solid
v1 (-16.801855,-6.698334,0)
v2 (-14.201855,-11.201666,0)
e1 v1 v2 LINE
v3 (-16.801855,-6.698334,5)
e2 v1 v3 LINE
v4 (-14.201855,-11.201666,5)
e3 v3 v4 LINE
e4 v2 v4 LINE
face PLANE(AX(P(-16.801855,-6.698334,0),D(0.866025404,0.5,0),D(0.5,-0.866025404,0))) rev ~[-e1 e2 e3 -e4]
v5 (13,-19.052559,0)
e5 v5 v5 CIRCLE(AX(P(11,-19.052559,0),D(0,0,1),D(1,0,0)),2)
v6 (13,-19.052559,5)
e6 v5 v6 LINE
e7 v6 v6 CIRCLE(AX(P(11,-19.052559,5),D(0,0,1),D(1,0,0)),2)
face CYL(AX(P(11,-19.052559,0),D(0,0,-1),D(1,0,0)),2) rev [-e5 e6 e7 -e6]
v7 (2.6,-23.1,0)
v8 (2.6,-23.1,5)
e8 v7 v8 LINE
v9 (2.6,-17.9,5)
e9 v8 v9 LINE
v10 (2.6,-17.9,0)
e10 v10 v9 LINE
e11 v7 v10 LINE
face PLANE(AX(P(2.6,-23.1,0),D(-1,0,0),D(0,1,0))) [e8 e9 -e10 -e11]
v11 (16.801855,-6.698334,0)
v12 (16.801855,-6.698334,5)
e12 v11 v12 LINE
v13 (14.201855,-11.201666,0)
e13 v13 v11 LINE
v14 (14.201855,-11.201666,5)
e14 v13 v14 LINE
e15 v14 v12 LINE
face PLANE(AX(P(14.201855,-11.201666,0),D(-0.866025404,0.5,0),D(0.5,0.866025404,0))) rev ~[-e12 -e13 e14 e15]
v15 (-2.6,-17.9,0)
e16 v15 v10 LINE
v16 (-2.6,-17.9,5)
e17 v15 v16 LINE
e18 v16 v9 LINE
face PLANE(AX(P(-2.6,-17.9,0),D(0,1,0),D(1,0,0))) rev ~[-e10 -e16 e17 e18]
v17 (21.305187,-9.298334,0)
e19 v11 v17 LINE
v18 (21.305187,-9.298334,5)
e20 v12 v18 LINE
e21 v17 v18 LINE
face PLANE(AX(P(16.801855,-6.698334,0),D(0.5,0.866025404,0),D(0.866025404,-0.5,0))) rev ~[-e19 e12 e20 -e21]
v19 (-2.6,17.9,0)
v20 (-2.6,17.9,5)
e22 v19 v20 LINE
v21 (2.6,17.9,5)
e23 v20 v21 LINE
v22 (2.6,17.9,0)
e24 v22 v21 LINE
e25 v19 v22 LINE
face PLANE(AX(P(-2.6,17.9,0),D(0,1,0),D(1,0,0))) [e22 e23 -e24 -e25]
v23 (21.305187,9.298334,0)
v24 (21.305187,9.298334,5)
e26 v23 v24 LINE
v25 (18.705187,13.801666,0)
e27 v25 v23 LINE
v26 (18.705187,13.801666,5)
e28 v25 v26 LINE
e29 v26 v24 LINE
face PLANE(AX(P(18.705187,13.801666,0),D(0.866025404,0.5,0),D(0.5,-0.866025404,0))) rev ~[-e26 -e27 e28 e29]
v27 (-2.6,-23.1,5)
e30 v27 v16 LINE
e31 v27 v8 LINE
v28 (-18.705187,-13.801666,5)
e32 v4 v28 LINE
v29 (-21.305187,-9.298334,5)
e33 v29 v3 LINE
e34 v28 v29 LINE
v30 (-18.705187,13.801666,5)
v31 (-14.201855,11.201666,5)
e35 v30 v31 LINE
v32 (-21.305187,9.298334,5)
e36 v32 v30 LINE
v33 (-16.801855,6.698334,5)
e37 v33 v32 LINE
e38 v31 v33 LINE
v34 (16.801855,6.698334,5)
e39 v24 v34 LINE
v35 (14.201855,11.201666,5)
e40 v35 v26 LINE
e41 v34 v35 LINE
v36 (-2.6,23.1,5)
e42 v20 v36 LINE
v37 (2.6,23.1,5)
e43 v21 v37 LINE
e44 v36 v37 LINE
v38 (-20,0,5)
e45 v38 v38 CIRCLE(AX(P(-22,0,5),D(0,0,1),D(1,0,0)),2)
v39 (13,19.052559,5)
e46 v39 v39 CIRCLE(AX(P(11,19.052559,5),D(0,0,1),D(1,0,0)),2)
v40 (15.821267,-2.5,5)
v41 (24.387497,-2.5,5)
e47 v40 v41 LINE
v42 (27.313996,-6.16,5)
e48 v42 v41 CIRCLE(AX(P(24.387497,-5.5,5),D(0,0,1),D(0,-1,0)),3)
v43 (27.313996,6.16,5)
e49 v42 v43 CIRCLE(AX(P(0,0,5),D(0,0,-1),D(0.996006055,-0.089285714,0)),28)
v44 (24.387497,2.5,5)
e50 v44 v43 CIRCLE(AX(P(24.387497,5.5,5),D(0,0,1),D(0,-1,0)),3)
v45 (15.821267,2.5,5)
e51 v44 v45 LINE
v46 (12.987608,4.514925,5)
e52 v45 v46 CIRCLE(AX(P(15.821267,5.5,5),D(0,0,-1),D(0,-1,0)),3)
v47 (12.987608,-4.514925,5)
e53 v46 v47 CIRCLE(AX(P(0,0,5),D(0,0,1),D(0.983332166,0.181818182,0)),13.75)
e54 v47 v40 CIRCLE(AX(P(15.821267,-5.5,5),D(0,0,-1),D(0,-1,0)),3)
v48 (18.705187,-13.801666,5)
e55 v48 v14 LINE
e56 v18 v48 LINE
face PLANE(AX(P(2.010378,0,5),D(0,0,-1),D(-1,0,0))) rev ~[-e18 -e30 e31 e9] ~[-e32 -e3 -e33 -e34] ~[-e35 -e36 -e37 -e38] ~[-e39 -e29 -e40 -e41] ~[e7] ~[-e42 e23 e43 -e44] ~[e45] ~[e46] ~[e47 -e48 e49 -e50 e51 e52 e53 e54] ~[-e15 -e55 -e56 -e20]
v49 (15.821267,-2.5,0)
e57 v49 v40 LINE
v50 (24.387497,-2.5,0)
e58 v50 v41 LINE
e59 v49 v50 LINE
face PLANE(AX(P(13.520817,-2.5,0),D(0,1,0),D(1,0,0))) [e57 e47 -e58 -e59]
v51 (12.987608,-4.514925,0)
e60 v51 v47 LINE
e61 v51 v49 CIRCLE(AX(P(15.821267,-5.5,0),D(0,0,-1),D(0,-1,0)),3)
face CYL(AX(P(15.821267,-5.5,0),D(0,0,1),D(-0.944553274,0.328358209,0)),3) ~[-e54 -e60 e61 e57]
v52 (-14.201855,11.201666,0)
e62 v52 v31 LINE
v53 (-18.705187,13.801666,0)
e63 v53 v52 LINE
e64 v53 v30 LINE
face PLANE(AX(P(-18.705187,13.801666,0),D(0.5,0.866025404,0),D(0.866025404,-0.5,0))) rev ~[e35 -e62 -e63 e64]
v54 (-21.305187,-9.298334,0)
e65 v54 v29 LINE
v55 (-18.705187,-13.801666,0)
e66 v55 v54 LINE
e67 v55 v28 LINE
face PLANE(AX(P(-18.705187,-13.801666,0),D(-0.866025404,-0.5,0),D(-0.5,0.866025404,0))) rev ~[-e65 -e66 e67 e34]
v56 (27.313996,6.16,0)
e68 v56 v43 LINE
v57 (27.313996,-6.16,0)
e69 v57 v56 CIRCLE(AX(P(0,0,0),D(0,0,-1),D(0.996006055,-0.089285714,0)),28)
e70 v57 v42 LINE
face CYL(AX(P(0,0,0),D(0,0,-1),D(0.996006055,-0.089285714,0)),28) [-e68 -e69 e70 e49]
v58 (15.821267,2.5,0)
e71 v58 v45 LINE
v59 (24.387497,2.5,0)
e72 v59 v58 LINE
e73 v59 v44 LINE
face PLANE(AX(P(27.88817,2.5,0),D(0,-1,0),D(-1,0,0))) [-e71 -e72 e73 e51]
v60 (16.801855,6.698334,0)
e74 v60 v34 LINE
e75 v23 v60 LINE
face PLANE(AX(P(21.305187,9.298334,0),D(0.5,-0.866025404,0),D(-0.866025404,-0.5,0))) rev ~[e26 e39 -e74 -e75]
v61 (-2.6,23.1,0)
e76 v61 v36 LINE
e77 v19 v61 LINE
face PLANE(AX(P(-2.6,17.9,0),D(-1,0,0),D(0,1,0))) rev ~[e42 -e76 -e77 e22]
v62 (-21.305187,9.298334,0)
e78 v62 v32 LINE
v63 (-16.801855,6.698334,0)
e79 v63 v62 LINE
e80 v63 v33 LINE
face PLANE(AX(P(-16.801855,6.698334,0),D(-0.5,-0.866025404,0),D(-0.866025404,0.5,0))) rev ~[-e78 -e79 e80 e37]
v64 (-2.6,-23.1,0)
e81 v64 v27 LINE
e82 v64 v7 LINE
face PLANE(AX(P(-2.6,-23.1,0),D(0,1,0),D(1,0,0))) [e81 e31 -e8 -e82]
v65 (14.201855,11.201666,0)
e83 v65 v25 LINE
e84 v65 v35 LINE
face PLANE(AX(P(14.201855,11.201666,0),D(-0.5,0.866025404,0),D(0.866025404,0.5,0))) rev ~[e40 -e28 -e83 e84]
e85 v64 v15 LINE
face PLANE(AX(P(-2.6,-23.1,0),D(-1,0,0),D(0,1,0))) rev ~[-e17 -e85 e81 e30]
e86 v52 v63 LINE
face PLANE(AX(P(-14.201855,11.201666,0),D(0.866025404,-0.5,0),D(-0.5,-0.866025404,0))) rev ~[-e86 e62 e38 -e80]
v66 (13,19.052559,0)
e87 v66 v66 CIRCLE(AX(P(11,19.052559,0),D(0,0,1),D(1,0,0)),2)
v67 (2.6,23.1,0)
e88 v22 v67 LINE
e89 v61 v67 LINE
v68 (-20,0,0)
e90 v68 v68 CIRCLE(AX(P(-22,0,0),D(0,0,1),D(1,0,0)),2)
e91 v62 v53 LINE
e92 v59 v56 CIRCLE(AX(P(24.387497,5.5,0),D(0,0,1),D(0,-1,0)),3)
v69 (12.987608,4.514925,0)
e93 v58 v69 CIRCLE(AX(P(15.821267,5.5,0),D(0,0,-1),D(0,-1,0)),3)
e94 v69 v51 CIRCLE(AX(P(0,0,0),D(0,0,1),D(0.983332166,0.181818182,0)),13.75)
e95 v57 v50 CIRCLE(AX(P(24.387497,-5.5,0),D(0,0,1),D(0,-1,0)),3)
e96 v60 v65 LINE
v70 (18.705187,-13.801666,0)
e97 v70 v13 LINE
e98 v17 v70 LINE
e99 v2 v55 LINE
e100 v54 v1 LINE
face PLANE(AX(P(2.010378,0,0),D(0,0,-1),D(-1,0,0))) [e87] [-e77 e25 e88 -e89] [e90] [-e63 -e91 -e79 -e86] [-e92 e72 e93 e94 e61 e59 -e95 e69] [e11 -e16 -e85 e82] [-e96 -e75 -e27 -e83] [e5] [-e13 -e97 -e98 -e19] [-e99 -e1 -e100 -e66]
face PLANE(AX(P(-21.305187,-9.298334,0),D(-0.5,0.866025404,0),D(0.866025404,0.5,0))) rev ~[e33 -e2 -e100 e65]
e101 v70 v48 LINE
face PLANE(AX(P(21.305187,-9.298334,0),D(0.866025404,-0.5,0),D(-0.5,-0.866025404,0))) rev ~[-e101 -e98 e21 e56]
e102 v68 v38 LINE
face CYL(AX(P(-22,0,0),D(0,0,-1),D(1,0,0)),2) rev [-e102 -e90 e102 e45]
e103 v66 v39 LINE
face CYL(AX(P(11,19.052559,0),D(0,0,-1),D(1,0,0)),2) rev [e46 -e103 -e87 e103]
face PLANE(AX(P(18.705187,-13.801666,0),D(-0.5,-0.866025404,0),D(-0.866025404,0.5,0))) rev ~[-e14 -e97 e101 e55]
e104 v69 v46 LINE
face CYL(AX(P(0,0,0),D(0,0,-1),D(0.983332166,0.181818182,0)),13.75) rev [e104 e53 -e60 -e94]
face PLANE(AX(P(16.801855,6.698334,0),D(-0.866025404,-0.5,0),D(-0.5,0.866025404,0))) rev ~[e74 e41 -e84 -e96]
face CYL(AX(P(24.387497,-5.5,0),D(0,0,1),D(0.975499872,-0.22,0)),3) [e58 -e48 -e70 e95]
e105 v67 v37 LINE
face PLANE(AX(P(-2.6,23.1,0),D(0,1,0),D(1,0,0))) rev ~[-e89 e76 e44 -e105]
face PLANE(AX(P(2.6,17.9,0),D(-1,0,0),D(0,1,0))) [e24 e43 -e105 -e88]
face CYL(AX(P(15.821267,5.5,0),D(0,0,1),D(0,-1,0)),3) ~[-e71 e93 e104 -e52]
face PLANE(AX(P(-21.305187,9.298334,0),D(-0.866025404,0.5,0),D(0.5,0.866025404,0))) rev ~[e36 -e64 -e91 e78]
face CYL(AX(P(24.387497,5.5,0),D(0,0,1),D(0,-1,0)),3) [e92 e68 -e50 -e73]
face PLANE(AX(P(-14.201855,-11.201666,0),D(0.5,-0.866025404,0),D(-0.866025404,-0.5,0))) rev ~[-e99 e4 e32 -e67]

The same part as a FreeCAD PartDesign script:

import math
import FreeCAD as App
import Part
import Sketcher
from FreeCAD import Vector
Q = App.Units.Quantity


def edges_at(feature, points):
    """Names of the edges that pass closest to the given points."""
    edges = feature.Shape.Edges
    near = lambda p: min(range(len(edges)), key=lambda i: edges[i].distToShape(Part.Vertex(*p))[0])
    return sorted({f"Edge{near(p) + 1}" for p in points})


def add_polygon(sketch, points):
    """Adds a closed chain of lines whose ends are joined by coincident constraints."""
    first, n = sketch.GeometryCount, len(points)
    for a, b in zip(points, points[1:] + points[:1]):
        sketch.addGeometry(Part.LineSegment(App.Vector(*a, 0), App.Vector(*b, 0)), False)
    for i in range(n):
        sketch.addConstraint(Sketcher.Constraint("Coincident", first + i, 2, first + (i + 1) % n, 1))

doc = App.newDocument("Part")
body = doc.addObject("PartDesign::Body", "Body")

# Sketch on XY plane
sketch1 = doc.addObject("Sketcher::SketchObject", "Sketch")
body.addObject(sketch1)
sketch1.AttachmentSupport = (doc.XY_Plane, [""])
sketch1.MapMode = "FlatFace"
sketch1.addGeometry(Part.LineSegment(Vector(13.5, 2.5, 0), Vector(27.9, 2.5, 0)), False)  # 0
sketch1.addGeometry(Part.ArcOfCircle(Part.Circle(Vector(0, 0, 0), Vector(0, 0, 1), 28), math.radians(5), math.radians(355)), False)  # 1
sketch1.addGeometry(Part.LineSegment(Vector(27.9, -2.5, 0), Vector(13.5, -2.5, 0)), False)  # 2
sketch1.addGeometry(Part.ArcOfCircle(Part.Circle(Vector(0, 0, 0), Vector(0, 0, 1), 13.8), math.radians(10), math.radians(350)), False)  # 3
sketch1.addGeometry(Part.Circle(Vector(11, -19.1, 0), Vector(0, 0, 1), 2), False)  # 4
add_polygon(sketch1, [(-2.6, -23.1), (-2.6, -17.9), (2.6, -17.9), (2.6, -23.1)])  # lines 5-8
add_polygon(sketch1, [(18.7, -13.8), (14.2, -11.2), (16.8, -6.7), (21.3, -9.3)])  # lines 9-12
add_polygon(sketch1, [(-21.3, -9.3), (-16.8, -6.7), (-14.2, -11.2), (-18.7, -13.8)])  # lines 13-16
add_polygon(sketch1, [(21.3, 9.3), (16.8, 6.7), (14.2, 11.2), (18.7, 13.8)])  # lines 17-20
sketch1.addGeometry(Part.Circle(Vector(11, 19.1, 0), Vector(0, 0, 1), 2), False)  # 21
add_polygon(sketch1, [(-2.6, 17.9), (-2.6, 23.1), (2.6, 23.1), (2.6, 17.9)])  # lines 22-25
sketch1.addGeometry(Part.Circle(Vector(-22, 0, 0), Vector(0, 0, 1), 2), False)  # 26
add_polygon(sketch1, [(-18.7, 13.8), (-14.2, 11.2), (-16.8, 6.7), (-21.3, 9.3)])  # lines 27-30
sketch1.addConstraint([
    Sketcher.Constraint("Coincident", 0, 2, 1, 1),
    Sketcher.Constraint("Coincident", 1, 2, 2, 1),
    Sketcher.Constraint("Coincident", 2, 2, 3, 2),
    Sketcher.Constraint("Coincident", 3, 1, 0, 1),
    Sketcher.Constraint("Horizontal", 0),
    Sketcher.Constraint("Horizontal", 2),
    Sketcher.Constraint("Vertical", 5),
    Sketcher.Constraint("Horizontal", 6),
    Sketcher.Constraint("Vertical", 7),
    Sketcher.Constraint("Horizontal", 8),
    Sketcher.Constraint("Vertical", 22),
    Sketcher.Constraint("Horizontal", 23),
    Sketcher.Constraint("Vertical", 24),
    Sketcher.Constraint("Horizontal", 25),
    Sketcher.Constraint("Coincident", 1, 3, -1, 1),
    Sketcher.Constraint("Coincident", 3, 3, -1, 1),
    Sketcher.Constraint("Equal", 4, 21),
    Sketcher.Constraint("Equal", 21, 26),
    Sketcher.Constraint("Symmetric", 13, 2, 17, 2, -1, 1),
    Sketcher.Constraint("Symmetric", 14, 2, 18, 2, -1, 1),
    Sketcher.Constraint("Symmetric", 15, 2, 19, 2, -1, 1),
    Sketcher.Constraint("Symmetric", 16, 2, 20, 2, -1, 1),
    Sketcher.Constraint("Symmetric", 7, 2, 22, 2, -1, 1),
    Sketcher.Constraint("Symmetric", 5, 2, 24, 2, -1, 1),
    Sketcher.Constraint("Symmetric", 9, 2, 27, 2, -1, 1),
    Sketcher.Constraint("Symmetric", 10, 2, 28, 2, -1, 1),
    Sketcher.Constraint("Symmetric", 11, 2, 29, 2, -1, 1),
    Sketcher.Constraint("Symmetric", 12, 2, 30, 2, -1, 1),
    Sketcher.Constraint("Symmetric", 10, 2, 13, 2, -2),
    Sketcher.Constraint("Symmetric", 9, 2, 14, 2, -2),
    Sketcher.Constraint("Symmetric", 12, 2, 15, 2, -2),
    Sketcher.Constraint("Symmetric", 11, 2, 16, 2, -2),
    Sketcher.Constraint("Symmetric", 4, 3, 21, 3, -1),
    Sketcher.Constraint("PointOnObject", 26, 3, -1),
    Sketcher.Constraint("Perpendicular", 9, 10),
    Sketcher.Constraint("Perpendicular", 10, 11),
    Sketcher.Constraint("Perpendicular", 11, 12),
    Sketcher.Constraint("Vertical", 0, 2, 1, 2),
    Sketcher.Constraint("Vertical", 8, 2, 22, 2),
    Sketcher.Constraint("Equal", 25, 5),
    Sketcher.Constraint("Equal", 9, 10),
    Sketcher.Constraint("Diameter", 4, 4.0),
    Sketcher.Constraint("Radius", 1, 28.0),
    Sketcher.Constraint("Angle", 9, Q("150 deg")),
    Sketcher.Constraint("Radius", 3, 13.75),
    Sketcher.Constraint("DistanceX", 6, 1, 6, 2, 5.2),
    Sketcher.Constraint("DistanceX", -1, 1, 4, 3, 11.0),
    Sketcher.Constraint("DistanceX", 26, 3, -1, 1, 22.0),
    Sketcher.Constraint("DistanceY", 1, 2, 0, 2, 5.0),
    Sketcher.Constraint("Distance", 9, 5.2),
    Sketcher.Constraint("DistanceY", 5, 2, -1, 1, 17.9),
    Sketcher.Constraint("DistanceY", 13, 2, 27, 2, 17.9),
    Sketcher.Constraint("DistanceY", 4, 3, -1, 1, 19.052559),
    Sketcher.Constraint("DistanceX", 2, 2, 11, 2, 7.78437),
])
pad1 = doc.addObject("PartDesign::Pad", "Pad")
body.addObject(pad1)
pad1.Profile = sketch1
pad1.Length = 5
doc.recompute()

fillet = doc.addObject("PartDesign::Fillet", "Fillet")
body.addObject(fillet)
fillet.Base = (pad1, edges_at(pad1, [
    (27.888, 2.5, 2.5),
    (13.521, 2.5, 2.5),
    (13.521, -2.5, 2.5),
    (27.888, -2.5, 2.5),
]))
fillet.Radius = 3

doc.recompute()
